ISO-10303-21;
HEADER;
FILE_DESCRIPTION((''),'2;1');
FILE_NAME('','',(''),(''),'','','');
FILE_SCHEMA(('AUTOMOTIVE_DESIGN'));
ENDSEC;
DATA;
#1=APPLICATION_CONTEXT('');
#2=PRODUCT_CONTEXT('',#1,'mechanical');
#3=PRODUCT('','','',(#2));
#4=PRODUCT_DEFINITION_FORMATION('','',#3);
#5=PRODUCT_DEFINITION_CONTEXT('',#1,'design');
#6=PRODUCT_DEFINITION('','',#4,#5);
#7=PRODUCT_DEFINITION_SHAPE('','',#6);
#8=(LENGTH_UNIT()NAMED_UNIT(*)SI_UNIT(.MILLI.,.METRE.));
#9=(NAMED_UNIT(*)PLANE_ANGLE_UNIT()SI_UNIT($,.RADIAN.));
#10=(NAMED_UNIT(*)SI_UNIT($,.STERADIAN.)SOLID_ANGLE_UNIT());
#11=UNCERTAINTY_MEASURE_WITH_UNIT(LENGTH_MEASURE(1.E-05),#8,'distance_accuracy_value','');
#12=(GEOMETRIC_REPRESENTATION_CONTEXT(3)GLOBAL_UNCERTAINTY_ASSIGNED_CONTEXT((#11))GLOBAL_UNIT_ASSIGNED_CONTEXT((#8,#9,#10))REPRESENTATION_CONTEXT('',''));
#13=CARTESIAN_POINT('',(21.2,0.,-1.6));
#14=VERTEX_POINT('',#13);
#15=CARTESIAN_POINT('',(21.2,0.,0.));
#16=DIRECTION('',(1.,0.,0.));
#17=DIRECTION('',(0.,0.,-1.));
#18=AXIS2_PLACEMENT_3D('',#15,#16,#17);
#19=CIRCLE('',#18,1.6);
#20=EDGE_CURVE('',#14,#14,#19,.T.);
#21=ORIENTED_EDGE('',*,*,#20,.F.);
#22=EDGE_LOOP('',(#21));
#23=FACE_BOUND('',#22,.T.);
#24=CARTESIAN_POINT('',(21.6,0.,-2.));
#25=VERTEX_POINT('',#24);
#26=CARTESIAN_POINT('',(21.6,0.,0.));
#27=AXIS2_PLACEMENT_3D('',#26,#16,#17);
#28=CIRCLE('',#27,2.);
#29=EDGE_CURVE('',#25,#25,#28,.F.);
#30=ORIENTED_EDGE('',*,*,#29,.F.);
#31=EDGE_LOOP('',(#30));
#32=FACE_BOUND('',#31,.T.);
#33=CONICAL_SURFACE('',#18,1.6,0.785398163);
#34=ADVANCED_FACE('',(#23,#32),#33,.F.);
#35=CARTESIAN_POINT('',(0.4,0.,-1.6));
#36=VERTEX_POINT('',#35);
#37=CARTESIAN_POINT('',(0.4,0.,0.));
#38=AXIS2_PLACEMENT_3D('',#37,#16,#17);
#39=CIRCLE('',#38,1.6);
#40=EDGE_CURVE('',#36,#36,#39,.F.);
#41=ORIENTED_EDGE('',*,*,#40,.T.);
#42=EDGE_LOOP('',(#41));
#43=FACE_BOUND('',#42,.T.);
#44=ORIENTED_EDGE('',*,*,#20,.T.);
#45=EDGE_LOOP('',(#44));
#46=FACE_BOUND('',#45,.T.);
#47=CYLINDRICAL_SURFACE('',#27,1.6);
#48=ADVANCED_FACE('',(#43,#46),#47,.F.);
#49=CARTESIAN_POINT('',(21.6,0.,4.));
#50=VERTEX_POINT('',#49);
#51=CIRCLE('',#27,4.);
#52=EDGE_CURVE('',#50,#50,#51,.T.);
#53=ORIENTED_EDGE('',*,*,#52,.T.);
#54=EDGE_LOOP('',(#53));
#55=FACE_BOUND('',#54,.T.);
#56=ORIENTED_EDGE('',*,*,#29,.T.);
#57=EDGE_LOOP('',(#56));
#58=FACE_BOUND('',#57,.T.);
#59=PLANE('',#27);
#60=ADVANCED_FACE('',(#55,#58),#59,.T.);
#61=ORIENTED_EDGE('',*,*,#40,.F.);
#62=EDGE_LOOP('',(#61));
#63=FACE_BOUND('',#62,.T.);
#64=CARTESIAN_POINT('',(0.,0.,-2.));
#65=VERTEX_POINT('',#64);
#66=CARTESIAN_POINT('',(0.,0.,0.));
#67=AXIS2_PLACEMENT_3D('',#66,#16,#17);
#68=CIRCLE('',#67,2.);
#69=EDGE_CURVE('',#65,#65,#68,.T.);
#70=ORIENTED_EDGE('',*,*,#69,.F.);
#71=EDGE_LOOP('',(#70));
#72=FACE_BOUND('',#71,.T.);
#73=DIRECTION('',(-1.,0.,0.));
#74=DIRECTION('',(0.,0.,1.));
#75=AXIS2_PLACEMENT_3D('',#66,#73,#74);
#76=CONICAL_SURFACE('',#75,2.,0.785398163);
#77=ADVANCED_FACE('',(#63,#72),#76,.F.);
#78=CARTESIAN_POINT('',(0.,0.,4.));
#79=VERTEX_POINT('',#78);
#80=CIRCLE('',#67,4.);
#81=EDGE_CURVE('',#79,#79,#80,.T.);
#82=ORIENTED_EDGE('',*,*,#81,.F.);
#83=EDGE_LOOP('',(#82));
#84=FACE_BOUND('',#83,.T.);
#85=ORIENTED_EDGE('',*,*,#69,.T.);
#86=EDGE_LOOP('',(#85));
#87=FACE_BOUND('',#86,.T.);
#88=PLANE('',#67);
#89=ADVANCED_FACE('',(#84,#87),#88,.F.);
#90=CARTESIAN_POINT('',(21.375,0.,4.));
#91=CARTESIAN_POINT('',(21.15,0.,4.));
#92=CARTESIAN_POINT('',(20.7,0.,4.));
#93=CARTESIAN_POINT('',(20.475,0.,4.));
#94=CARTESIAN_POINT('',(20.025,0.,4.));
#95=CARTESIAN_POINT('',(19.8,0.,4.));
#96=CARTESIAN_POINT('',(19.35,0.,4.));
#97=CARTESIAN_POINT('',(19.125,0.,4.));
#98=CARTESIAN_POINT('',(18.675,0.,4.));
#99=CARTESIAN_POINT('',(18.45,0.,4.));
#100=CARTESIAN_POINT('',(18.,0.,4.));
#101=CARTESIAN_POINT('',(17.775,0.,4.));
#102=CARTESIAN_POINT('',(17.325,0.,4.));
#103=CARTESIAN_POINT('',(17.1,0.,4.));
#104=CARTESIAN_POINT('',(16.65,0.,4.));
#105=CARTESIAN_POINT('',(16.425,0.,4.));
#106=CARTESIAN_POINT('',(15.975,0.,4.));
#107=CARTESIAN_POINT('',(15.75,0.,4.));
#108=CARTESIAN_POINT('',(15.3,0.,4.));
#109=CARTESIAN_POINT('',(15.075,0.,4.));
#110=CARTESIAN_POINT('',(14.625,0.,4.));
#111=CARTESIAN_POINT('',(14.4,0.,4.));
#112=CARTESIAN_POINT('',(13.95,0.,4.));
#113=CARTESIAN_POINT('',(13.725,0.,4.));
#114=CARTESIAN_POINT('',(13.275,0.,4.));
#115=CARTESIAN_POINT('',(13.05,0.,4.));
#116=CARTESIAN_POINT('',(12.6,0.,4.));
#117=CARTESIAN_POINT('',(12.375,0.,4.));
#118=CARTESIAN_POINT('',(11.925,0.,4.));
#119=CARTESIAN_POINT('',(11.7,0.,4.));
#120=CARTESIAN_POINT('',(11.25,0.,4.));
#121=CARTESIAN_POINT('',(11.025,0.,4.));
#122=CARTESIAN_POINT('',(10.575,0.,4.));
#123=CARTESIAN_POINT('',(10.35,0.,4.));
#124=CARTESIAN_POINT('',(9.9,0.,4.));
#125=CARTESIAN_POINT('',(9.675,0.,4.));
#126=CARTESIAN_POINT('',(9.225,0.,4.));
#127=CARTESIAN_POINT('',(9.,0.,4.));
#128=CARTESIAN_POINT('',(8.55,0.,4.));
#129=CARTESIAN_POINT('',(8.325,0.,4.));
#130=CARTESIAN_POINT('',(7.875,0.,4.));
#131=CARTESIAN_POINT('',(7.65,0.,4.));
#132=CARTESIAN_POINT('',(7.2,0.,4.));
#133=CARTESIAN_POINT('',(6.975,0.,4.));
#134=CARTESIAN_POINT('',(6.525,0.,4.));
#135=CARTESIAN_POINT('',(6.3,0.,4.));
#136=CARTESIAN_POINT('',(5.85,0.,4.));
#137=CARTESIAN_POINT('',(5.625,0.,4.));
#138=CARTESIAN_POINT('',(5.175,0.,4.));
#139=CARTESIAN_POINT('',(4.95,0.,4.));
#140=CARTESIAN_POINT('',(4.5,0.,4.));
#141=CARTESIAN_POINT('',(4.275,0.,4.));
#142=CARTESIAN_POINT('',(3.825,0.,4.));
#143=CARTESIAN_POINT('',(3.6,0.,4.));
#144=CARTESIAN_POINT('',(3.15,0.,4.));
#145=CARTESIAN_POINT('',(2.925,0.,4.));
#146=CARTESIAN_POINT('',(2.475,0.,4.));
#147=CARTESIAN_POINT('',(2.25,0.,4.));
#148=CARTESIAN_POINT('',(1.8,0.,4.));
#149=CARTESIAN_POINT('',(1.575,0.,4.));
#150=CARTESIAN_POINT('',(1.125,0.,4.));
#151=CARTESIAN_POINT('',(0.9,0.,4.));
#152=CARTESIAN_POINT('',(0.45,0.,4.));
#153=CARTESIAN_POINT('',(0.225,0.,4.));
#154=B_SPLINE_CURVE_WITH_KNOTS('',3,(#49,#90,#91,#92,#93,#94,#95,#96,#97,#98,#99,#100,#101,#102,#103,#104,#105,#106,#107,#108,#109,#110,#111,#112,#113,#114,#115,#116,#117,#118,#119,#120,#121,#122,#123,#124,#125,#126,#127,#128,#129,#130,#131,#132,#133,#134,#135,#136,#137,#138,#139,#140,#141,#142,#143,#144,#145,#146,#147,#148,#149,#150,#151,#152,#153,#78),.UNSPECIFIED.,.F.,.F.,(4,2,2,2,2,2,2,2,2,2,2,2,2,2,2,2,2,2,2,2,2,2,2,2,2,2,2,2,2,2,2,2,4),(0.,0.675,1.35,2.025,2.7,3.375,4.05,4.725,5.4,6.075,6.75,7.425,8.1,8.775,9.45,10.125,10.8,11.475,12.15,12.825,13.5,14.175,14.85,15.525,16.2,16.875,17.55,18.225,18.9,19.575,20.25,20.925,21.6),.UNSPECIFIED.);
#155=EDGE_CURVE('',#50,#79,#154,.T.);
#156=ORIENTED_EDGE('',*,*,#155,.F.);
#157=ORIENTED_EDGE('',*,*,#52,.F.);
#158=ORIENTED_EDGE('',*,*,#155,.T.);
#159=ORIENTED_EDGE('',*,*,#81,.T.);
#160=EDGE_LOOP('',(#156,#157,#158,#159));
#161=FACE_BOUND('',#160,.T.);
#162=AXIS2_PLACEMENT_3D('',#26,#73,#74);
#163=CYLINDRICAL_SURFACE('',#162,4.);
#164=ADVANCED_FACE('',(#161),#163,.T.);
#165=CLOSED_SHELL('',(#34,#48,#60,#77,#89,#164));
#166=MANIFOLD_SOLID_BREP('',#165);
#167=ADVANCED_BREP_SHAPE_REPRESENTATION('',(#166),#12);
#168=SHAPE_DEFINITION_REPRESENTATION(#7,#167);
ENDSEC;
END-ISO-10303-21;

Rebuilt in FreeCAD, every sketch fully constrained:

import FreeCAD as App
import Part
import Sketcher
from FreeCAD import Vector
Q = App.Units.Quantity


def edges_at(feature, points):
    """Names of the edges that pass closest to the given points."""
    edges = feature.Shape.Edges
    near = lambda p: min(range(len(edges)), key=lambda i: edges[i].distToShape(Part.Vertex(*p))[0])
    return sorted({f"Edge{near(p) + 1}" for p in points})

doc = App.newDocument("Part")
body = doc.addObject("PartDesign::Body", "Body")

# Sketch on YZ plane
sketch1 = doc.addObject("Sketcher::SketchObject", "Sketch")
body.addObject(sketch1)
sketch1.AttachmentSupport = (doc.YZ_Plane, [""])
sketch1.MapMode = "FlatFace"
sketch1.addGeometry(Part.Circle(Vector(0, 0, 0), Vector(0, 0, 1), 4), False)
sketch1.addConstraint([
    Sketcher.Constraint("Coincident", 0, 3, -1, 1),
    Sketcher.Constraint("Diameter", 0, Q("8 mm")),
])
pad1 = doc.addObject("PartDesign::Pad", "Pad")
body.addObject(pad1)
pad1.Profile = sketch1
pad1.Length = 21.6

# Sketch on YZ plane
sketch2 = doc.addObject("Sketcher::SketchObject", "Sketch001")
body.addObject(sketch2)
sketch2.AttachmentSupport = (doc.YZ_Plane, [""])
sketch2.MapMode = "FlatFace"
sketch2.AttachmentOffset = App.Placement(Vector(0, 0, 21.6), App.Rotation())
sketch2.addGeometry(Part.Circle(Vector(0, 0, 0), Vector(0, 0, 1), 1.6), False)
sketch2.addConstraint([
    Sketcher.Constraint("Coincident", 0, 3, -1, 1),
    Sketcher.Constraint("Diameter", 0, Q("3.2 mm")),
])
doc.recompute()
hole = doc.addObject("PartDesign::Hole", "Hole")
body.addObject(hole)
hole.Profile = sketch2
hole.ThreadType = "None"
hole.Diameter = 3.2
hole.DepthType = "ThroughAll"
doc.recompute()

chamfer = doc.addObject("PartDesign::Chamfer", "Chamfer")
body.addObject(chamfer)
chamfer.Base = (hole, edges_at(hole, [(21.6, 0, -1.6), (0, 0, -1.6)]))
chamfer.Size = 0.4

doc.recompute()
